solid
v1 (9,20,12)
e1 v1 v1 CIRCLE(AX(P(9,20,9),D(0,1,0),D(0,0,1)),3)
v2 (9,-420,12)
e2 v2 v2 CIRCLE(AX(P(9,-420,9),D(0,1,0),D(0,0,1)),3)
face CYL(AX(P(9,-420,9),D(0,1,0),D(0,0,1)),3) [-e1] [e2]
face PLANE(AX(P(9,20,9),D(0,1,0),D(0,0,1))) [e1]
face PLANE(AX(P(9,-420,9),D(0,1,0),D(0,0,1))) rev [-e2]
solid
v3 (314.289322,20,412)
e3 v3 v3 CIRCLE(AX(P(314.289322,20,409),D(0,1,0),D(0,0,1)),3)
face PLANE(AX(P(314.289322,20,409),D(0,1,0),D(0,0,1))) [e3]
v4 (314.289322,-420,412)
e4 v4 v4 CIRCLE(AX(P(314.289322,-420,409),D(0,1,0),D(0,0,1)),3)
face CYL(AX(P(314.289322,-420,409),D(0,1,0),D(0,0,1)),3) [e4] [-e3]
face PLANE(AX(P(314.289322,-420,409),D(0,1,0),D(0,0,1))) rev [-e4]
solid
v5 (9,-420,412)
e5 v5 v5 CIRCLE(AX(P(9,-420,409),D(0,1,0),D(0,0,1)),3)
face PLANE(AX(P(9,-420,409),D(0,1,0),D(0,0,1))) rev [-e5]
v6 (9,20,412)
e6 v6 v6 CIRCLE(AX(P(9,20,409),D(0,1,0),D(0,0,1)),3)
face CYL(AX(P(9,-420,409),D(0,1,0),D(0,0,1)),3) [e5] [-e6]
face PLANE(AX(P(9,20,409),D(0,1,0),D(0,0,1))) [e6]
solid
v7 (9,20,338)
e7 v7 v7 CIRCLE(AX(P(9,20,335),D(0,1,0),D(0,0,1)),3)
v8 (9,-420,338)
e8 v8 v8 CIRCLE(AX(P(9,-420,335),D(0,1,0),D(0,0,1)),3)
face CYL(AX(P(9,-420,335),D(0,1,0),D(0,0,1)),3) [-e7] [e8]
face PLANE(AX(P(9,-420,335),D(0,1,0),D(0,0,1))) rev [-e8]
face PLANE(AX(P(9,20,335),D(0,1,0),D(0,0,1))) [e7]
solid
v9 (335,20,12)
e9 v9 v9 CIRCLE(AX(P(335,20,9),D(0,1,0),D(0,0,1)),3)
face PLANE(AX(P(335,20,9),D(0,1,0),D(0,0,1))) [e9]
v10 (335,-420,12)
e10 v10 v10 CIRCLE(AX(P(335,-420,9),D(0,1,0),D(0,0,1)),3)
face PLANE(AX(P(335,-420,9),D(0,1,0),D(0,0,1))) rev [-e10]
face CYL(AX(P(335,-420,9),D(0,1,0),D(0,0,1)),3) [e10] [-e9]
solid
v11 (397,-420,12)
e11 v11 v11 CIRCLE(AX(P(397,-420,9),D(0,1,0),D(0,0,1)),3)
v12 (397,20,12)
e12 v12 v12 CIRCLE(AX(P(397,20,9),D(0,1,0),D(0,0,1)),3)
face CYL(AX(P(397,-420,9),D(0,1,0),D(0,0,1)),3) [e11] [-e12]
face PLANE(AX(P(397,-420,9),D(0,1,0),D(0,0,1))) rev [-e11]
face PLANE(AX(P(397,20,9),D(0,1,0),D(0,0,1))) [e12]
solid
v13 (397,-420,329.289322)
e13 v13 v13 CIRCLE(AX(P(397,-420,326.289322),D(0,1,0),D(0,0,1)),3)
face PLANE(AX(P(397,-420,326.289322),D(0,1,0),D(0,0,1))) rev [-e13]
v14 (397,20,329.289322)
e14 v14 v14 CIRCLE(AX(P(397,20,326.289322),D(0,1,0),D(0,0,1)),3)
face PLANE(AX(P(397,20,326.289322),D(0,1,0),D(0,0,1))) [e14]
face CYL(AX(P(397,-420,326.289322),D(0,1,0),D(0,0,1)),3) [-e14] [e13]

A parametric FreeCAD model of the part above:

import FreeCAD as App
import Part
import Sketcher
from FreeCAD import Vector
Q = App.Units.Quantity

doc = App.newDocument("Part")
params = doc.addObject("Spreadsheet::Sheet", "Params")
for row, (alias, value) in enumerate([
    ("sketch1_diameter", "6 mm"),
    ("pad1_length", "20 mm"),
    ("pad1_length2", "420 mm"),
    ("sketch2_diameter", "6 mm"),
    ("pad2_length", "20 mm"),
    ("pad2_length2", "420 mm"),
    ("sketch3_diameter", "6 mm"),
    ("pad3_length", "20 mm"),
    ("pad3_length2", "420 mm"),
    ("sketch4_diameter", "6 mm"),
    ("pad4_length", "20 mm"),
    ("pad4_length2", "420 mm"),
    ("sketch5_diameter", "6 mm"),
    ("pad5_length", "20 mm"),
    ("pad5_length2", "420 mm"),
    ("sketch6_diameter", "6 mm"),
    ("pad6_length", "20 mm"),
    ("pad6_length2", "420 mm"),
    ("sketch7_diameter", "6 mm"),
    ("pad7_length", "20 mm"),
    ("pad7_length2", "420 mm"),
], start=1):
    params.set(f"A{row}", alias)
    params.set(f"B{row}", "=" + value)
    params.setAlias(f"B{row}", alias)

body = doc.addObject("PartDesign::Body", "Body")

# Sketch on XZ plane
sketch1 = body.newObject("Sketcher::SketchObject", "Sketch")
sketch1.AttachmentSupport = (doc.getObject("XZ_Plane"), [""])
sketch1.MapMode = "FlatFace"
sketch1.addGeometry(Part.Circle(Vector(335, 9, 0), Vector(0, 0, 1), 3), False)
sketch1.addConstraint(Sketcher.Constraint("Diameter", 0, Q("6 mm")))
sketch1.addConstraint(Sketcher.Constraint("DistanceX", -1, 1, 0, 3, Q("335 mm")))
sketch1.addConstraint(Sketcher.Constraint("DistanceY", -1, 1, 0, 3, Q("9 mm")))
sketch1.setExpression("Constraints[0]", "Params.sketch1_diameter")
pad1 = body.newObject("PartDesign::Pad", "Pad")
pad1.Profile = sketch1
pad1.Type = "TwoLengths"
pad1.setExpression("Length", "Params.pad1_length")
pad1.setExpression("Length2", "Params.pad1_length2")
pad1.Reversed = True
body2 = doc.addObject("PartDesign::Body", "Body001")

# Sketch on XZ plane
sketch2 = body2.newObject("Sketcher::SketchObject", "Sketch001")
sketch2.AttachmentSupport = (doc.getObject("XZ_Plane001"), [""])
sketch2.MapMode = "FlatFace"
sketch2.addGeometry(Part.Circle(Vector(9, 9, 0), Vector(0, 0, 1), 3), False)
sketch2.addConstraint(Sketcher.Constraint("Diameter", 0, Q("6 mm")))
sketch2.addConstraint(Sketcher.Constraint("DistanceX", -1, 1, 0, 3, Q("9 mm")))
sketch2.addConstraint(Sketcher.Constraint("DistanceY", -1, 1, 0, 3, Q("9 mm")))
sketch2.setExpression("Constraints[0]", "Params.sketch2_diameter")
pad2 = body2.newObject("PartDesign::Pad", "Pad001")
pad2.Profile = sketch2
pad2.Type = "TwoLengths"
pad2.setExpression("Length", "Params.pad2_length")
pad2.setExpression("Length2", "Params.pad2_length2")
pad2.Reversed = True
body3 = doc.addObject("PartDesign::Body", "Body002")

# Sketch on XZ plane
sketch3 = body3.newObject("Sketcher::SketchObject", "Sketch002")
sketch3.AttachmentSupport = (doc.getObject("XZ_Plane002"), [""])
sketch3.MapMode = "FlatFace"
sketch3.addGeometry(Part.Circle(Vector(9, 335, 0), Vector(0, 0, 1), 3), False)
sketch3.addConstraint(Sketcher.Constraint("Diameter", 0, Q("6 mm")))
sketch3.addConstraint(Sketcher.Constraint("DistanceX", -1, 1, 0, 3, Q("9 mm")))
sketch3.addConstraint(Sketcher.Constraint("DistanceY", -1, 1, 0, 3, Q("335 mm")))
sketch3.setExpression("Constraints[0]", "Params.sketch3_diameter")
pad3 = body3.newObject("PartDesign::Pad", "Pad002")
pad3.Profile = sketch3
pad3.Type = "TwoLengths"
pad3.setExpression("Length", "Params.pad3_length")
pad3.setExpression("Length2", "Params.pad3_length2")
pad3.Reversed = True
body4 = doc.addObject("PartDesign::Body", "Body003")

# Sketch on XZ plane
sketch4 = body4.newObject("Sketcher::SketchObject", "Sketch003")
sketch4.AttachmentSupport = (doc.getObject("XZ_Plane003"), [""])
sketch4.MapMode = "FlatFace"
sketch4.addGeometry(Part.Circle(Vector(314.3, 409, 0), Vector(0, 0, 1), 3), False)
sketch4.addConstraint(Sketcher.Constraint("Diameter", 0, Q("6 mm")))
sketch4.addConstraint(Sketcher.Constraint("DistanceY", -1, 1, 0, 3, Q("409 mm")))
sketch4.addConstraint(Sketcher.Constraint("DistanceX", -1, 1, 0, 3, Q("314.289322 mm")))
sketch4.setExpression("Constraints[0]", "Params.sketch4_diameter")
pad4 = body4.newObject("PartDesign::Pad", "Pad003")
pad4.Profile = sketch4
pad4.Type = "TwoLengths"
pad4.setExpression("Length", "Params.pad4_length")
pad4.setExpression("Length2", "Params.pad4_length2")
pad4.Reversed = True
body5 = doc.addObject("PartDesign::Body", "Body004")

# Sketch on XZ plane
sketch5 = body5.newObject("Sketcher::SketchObject", "Sketch004")
sketch5.AttachmentSupport = (doc.getObject("XZ_Plane004"), [""])
sketch5.MapMode = "FlatFace"
sketch5.addGeometry(Part.Circle(Vector(397, 326.3, 0), Vector(0, 0, 1), 3), False)
sketch5.addConstraint(Sketcher.Constraint("Diameter", 0, Q("6 mm")))
sketch5.addConstraint(Sketcher.Constraint("DistanceX", -1, 1, 0, 3, Q("397 mm")))
sketch5.addConstraint(Sketcher.Constraint("DistanceY", -1, 1, 0, 3, Q("326.289322 mm")))
sketch5.setExpression("Constraints[0]", "Params.sketch5_diameter")
pad5 = body5.newObject("PartDesign::Pad", "Pad004")
pad5.Profile = sketch5
pad5.Type = "TwoLengths"
pad5.setExpression("Length", "Params.pad5_length")
pad5.setExpression("Length2", "Params.pad5_length2")
pad5.Reversed = True
body6 = doc.addObject("PartDesign::Body", "Body005")

# Sketch on XZ plane
sketch6 = body6.newObject("Sketcher::SketchObject", "Sketch005")
sketch6.AttachmentSupport = (doc.getObject("XZ_Plane005"), [""])
sketch6.MapMode = "FlatFace"
sketch6.addGeometry(Part.Circle(Vector(9, 409, 0), Vector(0, 0, 1), 3), False)
sketch6.addConstraint(Sketcher.Constraint("Diameter", 0, Q("6 mm")))
sketch6.addConstraint(Sketcher.Constraint("DistanceX", -1, 1, 0, 3, Q("9 mm")))
sketch6.addConstraint(Sketcher.Constraint("DistanceY", -1, 1, 0, 3, Q("409 mm")))
sketch6.setExpression("Constraints[0]", "Params.sketch6_diameter")
pad6 = body6.newObject("PartDesign::Pad", "Pad005")
pad6.Profile = sketch6
pad6.Type = "TwoLengths"
pad6.setExpression("Length", "Params.pad6_length")
pad6.setExpression("Length2", "Params.pad6_length2")
pad6.Reversed = True
body7 = doc.addObject("PartDesign::Body", "Body006")

# Sketch on XZ plane
sketch7 = body7.newObject("Sketcher::SketchObject", "Sketch006")
sketch7.AttachmentSupport = (doc.getObject("XZ_Plane006"), [""])
sketch7.MapMode = "FlatFace"
sketch7.addGeometry(Part.Circle(Vector(397, 9, 0), Vector(0, 0, 1), 3), False)
sketch7.addConstraint(Sketcher.Constraint("Diameter", 0, Q("6 mm")))
sketch7.addConstraint(Sketcher.Constraint("DistanceX", -1, 1, 0, 3, Q("397 mm")))
sketch7.addConstraint(Sketcher.Constraint("DistanceY", -1, 1, 0, 3, Q("9 mm")))
sketch7.setExpression("Constraints[0]", "Params.sketch7_diameter")
pad7 = body7.newObject("PartDesign::Pad", "Pad006")
pad7.Profile = sketch7
pad7.Type = "TwoLengths"
pad7.setExpression("Length", "Params.pad7_length")
pad7.setExpression("Length2", "Params.pad7_length2")
pad7.Reversed = True

doc.recompute()
